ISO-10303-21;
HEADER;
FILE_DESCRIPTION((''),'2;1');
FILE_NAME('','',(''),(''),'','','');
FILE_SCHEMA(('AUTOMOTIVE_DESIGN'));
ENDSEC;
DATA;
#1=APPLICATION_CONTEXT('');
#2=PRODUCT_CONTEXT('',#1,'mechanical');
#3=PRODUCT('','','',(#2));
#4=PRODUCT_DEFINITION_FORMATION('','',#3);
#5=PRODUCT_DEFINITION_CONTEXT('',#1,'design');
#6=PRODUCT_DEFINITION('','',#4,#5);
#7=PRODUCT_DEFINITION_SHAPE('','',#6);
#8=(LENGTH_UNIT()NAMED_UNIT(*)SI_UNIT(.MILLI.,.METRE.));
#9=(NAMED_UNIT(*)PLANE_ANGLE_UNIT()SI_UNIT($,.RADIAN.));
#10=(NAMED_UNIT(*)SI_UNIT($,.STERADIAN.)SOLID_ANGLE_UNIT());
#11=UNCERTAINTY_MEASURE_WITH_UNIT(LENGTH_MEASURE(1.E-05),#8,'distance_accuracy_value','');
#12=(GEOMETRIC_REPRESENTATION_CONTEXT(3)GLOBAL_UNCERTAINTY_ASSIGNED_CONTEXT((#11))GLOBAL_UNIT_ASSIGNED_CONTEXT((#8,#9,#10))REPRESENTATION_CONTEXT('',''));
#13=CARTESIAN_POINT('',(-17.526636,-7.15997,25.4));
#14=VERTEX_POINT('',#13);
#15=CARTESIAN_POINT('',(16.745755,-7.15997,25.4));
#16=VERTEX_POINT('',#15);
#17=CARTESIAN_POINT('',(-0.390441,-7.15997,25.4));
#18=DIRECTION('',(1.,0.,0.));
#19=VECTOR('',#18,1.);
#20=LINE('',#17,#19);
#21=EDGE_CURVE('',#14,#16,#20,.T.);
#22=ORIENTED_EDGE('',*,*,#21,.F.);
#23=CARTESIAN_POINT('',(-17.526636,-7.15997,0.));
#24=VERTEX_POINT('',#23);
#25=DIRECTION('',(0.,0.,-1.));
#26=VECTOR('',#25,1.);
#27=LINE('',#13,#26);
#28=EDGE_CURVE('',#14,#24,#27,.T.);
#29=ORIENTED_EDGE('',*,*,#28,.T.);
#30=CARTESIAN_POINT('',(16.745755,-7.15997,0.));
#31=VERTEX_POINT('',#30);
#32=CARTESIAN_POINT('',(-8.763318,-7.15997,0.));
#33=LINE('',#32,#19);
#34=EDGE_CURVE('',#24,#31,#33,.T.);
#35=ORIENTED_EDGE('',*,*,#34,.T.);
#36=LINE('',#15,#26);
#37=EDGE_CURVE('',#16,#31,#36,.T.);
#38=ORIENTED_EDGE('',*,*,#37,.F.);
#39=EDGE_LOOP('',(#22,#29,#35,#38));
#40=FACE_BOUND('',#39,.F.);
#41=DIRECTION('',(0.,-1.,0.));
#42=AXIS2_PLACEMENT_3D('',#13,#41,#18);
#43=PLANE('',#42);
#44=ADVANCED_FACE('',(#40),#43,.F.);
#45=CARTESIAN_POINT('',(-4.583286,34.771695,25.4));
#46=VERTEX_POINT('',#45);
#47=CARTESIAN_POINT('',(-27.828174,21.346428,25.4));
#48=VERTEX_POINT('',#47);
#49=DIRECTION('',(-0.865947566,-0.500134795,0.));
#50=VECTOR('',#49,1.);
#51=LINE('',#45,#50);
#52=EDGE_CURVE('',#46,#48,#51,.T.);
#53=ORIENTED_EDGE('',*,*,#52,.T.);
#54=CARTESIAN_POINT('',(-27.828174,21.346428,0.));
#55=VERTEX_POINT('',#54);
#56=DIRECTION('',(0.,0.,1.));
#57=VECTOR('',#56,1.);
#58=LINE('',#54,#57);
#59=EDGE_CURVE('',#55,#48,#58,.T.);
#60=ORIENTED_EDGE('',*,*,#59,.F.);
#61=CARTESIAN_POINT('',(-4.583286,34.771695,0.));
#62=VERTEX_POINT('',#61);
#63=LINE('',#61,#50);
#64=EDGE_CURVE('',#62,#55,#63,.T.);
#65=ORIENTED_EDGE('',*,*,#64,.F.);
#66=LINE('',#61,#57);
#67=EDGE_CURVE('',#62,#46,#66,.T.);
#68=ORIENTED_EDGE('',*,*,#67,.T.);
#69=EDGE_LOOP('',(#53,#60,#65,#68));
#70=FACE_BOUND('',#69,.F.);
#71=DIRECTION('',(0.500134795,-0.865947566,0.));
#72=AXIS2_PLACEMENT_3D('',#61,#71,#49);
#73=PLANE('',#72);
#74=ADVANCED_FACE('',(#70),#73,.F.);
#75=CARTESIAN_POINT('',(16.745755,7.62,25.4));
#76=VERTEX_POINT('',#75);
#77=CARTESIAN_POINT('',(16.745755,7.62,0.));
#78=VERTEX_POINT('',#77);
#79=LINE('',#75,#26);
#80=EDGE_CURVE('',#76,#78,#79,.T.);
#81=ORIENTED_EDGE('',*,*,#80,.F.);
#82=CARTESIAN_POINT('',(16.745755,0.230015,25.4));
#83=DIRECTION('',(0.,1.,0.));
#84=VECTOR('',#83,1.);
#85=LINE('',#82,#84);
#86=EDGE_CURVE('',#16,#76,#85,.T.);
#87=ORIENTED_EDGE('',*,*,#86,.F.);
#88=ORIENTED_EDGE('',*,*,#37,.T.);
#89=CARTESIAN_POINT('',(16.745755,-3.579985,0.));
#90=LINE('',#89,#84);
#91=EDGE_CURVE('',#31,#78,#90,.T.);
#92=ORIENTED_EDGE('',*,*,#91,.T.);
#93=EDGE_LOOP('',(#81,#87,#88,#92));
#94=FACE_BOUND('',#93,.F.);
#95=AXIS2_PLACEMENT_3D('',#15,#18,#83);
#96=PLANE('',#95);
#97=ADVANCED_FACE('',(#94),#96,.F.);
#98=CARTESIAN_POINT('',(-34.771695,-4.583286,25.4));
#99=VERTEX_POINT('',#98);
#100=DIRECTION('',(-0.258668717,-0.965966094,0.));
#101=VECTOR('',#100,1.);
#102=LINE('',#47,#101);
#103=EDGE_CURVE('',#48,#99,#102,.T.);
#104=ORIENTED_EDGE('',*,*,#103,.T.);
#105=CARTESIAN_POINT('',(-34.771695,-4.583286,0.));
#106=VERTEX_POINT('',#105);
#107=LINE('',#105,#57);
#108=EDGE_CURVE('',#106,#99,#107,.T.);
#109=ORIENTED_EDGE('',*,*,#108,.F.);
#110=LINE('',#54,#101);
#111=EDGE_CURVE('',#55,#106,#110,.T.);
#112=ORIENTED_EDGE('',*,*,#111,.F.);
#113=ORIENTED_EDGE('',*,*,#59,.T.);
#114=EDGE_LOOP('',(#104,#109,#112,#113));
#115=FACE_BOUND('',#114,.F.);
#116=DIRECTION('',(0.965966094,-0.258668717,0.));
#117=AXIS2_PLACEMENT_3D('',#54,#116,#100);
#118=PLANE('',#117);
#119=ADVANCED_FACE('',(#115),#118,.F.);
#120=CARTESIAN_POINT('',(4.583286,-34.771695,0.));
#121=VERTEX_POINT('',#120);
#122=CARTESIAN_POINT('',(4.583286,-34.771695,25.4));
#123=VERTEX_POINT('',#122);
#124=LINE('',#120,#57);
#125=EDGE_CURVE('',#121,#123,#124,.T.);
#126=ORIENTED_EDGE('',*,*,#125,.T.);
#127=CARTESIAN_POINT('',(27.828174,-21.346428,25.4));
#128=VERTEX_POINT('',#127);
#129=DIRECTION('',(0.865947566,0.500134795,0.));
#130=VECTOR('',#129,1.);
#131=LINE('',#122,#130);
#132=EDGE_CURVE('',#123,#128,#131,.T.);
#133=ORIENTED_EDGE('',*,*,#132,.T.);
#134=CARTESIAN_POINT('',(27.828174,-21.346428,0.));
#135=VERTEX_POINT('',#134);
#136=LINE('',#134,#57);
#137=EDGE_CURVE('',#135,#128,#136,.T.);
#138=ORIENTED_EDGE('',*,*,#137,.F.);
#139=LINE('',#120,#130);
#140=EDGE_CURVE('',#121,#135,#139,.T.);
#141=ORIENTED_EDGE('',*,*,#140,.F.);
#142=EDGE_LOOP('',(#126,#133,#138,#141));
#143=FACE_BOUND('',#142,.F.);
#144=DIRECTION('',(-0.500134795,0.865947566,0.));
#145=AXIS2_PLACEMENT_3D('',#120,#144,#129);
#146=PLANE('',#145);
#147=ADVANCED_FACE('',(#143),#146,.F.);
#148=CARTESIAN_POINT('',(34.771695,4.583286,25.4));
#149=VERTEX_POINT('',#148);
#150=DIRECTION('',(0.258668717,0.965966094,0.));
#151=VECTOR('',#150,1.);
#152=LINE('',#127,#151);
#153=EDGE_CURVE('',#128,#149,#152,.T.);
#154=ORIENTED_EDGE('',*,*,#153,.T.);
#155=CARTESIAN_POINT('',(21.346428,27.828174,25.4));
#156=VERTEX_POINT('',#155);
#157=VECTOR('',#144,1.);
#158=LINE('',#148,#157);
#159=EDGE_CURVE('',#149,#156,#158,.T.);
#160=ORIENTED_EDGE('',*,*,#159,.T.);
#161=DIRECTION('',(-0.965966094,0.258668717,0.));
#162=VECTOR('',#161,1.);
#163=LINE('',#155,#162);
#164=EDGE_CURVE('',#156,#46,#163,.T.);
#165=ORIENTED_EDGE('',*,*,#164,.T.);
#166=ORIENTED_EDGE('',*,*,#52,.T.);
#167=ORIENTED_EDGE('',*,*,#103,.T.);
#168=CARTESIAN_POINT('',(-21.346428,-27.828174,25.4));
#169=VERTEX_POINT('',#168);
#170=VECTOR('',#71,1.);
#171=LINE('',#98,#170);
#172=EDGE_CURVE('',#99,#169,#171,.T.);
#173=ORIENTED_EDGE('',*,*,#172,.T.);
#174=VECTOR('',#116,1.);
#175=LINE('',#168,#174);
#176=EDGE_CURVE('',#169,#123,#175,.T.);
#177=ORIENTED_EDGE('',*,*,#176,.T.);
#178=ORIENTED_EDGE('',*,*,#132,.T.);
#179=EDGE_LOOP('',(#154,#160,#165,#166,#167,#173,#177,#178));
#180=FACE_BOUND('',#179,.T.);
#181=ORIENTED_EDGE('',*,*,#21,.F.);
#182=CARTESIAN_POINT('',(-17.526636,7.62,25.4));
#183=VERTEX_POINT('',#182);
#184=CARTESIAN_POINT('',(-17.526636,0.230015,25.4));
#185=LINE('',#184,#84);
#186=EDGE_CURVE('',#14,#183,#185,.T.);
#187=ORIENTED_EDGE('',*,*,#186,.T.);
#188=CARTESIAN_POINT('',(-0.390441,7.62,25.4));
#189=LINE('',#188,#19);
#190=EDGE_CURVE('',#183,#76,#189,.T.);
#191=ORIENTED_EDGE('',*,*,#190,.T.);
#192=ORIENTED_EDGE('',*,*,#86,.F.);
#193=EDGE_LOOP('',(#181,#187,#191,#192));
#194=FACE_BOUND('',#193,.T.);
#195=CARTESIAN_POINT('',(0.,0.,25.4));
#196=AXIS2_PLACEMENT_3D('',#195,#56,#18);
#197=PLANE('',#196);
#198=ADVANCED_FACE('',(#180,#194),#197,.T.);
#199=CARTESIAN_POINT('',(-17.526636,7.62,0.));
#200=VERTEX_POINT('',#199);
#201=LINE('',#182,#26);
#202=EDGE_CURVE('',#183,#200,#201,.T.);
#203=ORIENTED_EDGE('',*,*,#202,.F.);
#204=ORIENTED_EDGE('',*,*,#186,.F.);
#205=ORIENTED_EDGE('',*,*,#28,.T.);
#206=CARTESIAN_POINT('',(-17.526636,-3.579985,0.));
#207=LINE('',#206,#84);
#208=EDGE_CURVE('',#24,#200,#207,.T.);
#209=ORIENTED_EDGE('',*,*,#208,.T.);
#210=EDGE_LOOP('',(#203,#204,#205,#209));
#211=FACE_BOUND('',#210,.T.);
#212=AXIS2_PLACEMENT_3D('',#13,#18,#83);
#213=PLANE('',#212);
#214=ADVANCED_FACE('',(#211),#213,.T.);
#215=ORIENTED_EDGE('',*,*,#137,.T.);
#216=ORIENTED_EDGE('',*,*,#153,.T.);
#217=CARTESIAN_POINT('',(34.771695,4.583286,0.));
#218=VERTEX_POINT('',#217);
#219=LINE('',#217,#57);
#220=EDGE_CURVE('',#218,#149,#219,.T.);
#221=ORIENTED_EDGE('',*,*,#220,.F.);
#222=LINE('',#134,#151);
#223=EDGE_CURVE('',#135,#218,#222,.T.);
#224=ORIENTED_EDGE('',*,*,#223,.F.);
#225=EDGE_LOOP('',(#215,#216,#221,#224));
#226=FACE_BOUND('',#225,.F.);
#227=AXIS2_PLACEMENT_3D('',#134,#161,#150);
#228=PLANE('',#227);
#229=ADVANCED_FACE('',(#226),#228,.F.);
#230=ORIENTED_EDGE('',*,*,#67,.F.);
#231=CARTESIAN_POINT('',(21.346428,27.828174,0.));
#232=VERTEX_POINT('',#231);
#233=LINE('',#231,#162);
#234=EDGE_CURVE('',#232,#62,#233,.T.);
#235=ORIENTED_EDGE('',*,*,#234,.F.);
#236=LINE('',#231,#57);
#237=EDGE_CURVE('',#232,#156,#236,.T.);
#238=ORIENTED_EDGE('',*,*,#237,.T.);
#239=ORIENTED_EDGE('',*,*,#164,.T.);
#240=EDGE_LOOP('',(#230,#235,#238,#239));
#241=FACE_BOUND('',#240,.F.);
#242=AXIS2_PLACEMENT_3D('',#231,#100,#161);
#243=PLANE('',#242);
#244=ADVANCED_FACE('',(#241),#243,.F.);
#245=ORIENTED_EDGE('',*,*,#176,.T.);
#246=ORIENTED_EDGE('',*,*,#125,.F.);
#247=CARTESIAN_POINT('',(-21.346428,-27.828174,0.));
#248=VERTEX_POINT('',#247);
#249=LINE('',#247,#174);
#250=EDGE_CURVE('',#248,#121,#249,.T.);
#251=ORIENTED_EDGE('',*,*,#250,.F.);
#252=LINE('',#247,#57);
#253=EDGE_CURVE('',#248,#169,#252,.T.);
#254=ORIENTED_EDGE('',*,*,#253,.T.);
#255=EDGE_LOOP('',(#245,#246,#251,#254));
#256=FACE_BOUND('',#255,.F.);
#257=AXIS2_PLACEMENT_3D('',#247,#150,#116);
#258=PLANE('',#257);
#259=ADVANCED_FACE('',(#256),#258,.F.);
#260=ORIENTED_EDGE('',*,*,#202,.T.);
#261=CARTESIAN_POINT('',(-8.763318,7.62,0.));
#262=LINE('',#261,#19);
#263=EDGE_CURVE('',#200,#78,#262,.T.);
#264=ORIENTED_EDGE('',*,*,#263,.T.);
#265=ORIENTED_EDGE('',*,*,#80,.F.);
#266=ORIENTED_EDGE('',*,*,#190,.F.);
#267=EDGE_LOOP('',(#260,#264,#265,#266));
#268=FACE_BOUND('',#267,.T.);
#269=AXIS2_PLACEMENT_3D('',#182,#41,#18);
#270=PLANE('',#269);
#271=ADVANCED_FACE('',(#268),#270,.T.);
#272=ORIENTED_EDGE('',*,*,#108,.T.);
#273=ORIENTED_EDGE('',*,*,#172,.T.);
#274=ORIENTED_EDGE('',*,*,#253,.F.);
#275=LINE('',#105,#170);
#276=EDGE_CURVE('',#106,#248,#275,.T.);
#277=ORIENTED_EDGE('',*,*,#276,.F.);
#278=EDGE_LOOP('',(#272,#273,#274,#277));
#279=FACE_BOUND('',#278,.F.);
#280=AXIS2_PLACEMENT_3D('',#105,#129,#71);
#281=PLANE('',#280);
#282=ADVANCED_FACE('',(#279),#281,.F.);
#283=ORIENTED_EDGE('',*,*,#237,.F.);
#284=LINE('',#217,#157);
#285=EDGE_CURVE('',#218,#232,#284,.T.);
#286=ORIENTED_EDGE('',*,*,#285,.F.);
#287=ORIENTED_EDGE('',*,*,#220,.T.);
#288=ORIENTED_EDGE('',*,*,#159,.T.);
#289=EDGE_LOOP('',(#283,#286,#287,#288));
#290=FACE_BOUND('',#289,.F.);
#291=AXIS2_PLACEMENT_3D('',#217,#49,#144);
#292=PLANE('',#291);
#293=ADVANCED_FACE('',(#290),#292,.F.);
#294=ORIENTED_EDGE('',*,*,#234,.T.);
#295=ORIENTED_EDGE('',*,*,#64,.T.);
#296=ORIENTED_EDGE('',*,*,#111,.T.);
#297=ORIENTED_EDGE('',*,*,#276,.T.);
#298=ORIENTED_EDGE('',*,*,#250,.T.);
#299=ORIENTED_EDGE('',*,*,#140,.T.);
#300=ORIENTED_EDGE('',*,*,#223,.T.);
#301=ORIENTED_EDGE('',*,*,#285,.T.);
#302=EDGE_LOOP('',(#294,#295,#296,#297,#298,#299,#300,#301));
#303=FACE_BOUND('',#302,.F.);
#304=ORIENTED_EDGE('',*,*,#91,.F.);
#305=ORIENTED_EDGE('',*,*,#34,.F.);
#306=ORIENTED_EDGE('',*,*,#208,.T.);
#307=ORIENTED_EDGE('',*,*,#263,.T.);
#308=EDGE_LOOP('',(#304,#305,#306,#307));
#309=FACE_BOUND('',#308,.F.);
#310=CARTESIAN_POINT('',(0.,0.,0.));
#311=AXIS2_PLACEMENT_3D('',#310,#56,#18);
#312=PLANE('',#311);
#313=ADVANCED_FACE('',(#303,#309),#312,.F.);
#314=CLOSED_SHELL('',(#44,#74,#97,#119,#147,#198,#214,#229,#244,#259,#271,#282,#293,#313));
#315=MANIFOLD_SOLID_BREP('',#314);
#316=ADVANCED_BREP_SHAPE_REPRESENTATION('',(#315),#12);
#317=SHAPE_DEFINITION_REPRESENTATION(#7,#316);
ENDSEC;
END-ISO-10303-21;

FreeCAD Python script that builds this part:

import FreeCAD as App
import Part
import Sketcher
Q = App.Units.Quantity

doc = App.newDocument("Part")
body = doc.addObject("PartDesign::Body", "Body")

# Sketch on XY plane
sketch1 = doc.addObject("Sketcher::SketchObject", "Sketch")
body.addObject(sketch1)
sketch1.AttachmentSupport = (doc.XY_Plane, [""])
sketch1.MapMode = "FlatFace"
sketch1.addGeometry([
    Part.LineSegment(App.Vector(34.771695, 4.583286, 0), App.Vector(21.346428, 27.828174, 0)),  # 0
    Part.LineSegment(App.Vector(21.346428, 27.828174, 0), App.Vector(-4.583286, 34.771695, 0)),  # 1
    Part.LineSegment(App.Vector(-4.583286, 34.771695, 0), App.Vector(-27.828174, 21.346428, 0)),  # 2
    Part.LineSegment(App.Vector(-27.828174, 21.346428, 0), App.Vector(-34.771695, -4.583286, 0)),  # 3
    Part.LineSegment(App.Vector(-34.771695, -4.583286, 0), App.Vector(-21.346428, -27.828174, 0)),  # 4
    Part.LineSegment(App.Vector(-21.346428, -27.828174, 0), App.Vector(4.583286, -34.771695, 0)),  # 5
    Part.LineSegment(App.Vector(4.583286, -34.771695, 0), App.Vector(27.828174, -21.346428, 0)),  # 6
    Part.LineSegment(App.Vector(27.828174, -21.346428, 0), App.Vector(34.771695, 4.583286, 0)),  # 7
], False)
sketch1.addConstraint([
    Sketcher.Constraint("Coincident", 0, 2, 1, 1),
    Sketcher.Constraint("Coincident", 1, 2, 2, 1),
    Sketcher.Constraint("Coincident", 2, 2, 3, 1),
    Sketcher.Constraint("Coincident", 3, 2, 4, 1),
    Sketcher.Constraint("Coincident", 4, 2, 5, 1),
    Sketcher.Constraint("Coincident", 5, 2, 6, 1),
    Sketcher.Constraint("Coincident", 6, 2, 7, 1),
    Sketcher.Constraint("Coincident", 7, 2, 0, 1),
    Sketcher.Constraint("Symmetric", 0, 2, 4, 2, -1, 1),
    Sketcher.Constraint("Symmetric", 1, 2, 5, 2, -1, 1),
    Sketcher.Constraint("Symmetric", 2, 2, 6, 2, -1, 1),
    Sketcher.Constraint("Symmetric", 3, 2, 7, 2, -1, 1),
    Sketcher.Constraint("Perpendicular", 0, 2),
    Sketcher.Constraint("Perpendicular", 1, 3),
    Sketcher.Constraint("Equal", 0, 1),
    Sketcher.Constraint("Equal", 1, 2),
    Sketcher.Constraint("Equal", 2, 3),
    Sketcher.Constraint("DistanceY", 0, 2, 1, 2, Q("6.943521 mm")),
    Sketcher.Constraint("DistanceX", 3, 2, 1, 2, Q("30.188409 mm")),
    Sketcher.Constraint("DistanceY", 3, 2, 1, 2, Q("39.354981 mm")),
])
pad1 = doc.addObject("PartDesign::Pad", "Pad")
body.addObject(pad1)
pad1.Profile = sketch1
pad1.Length = Q("1 in")

# Sketch on XY plane
sketch2 = doc.addObject("Sketcher::SketchObject", "Sketch001")
body.addObject(sketch2)
sketch2.AttachmentSupport = (doc.XY_Plane, [""])
sketch2.MapMode = "FlatFace"
sketch2.AttachmentOffset = App.Placement(App.Vector(0, 0, 1 * 25.4), App.Rotation())
sketch2.addGeometry([
    Part.LineSegment(App.Vector(-17.526636, 7.62, 0), App.Vector(-17.526636, -7.15997, 0)),
    Part.LineSegment(App.Vector(-17.526636, -7.15997, 0), App.Vector(16.745755, -7.15997, 0)),
    Part.LineSegment(App.Vector(16.745755, -7.15997, 0), App.Vector(16.745755, 7.62, 0)),
    Part.LineSegment(App.Vector(16.745755, 7.62, 0), App.Vector(-17.526636, 7.62, 0)),
], False)
sketch2.addConstraint([
    Sketcher.Constraint("Coincident", 0, 2, 1, 1),
    Sketcher.Constraint("Coincident", 1, 2, 2, 1),
    Sketcher.Constraint("Coincident", 2, 2, 3, 1),
    Sketcher.Constraint("Coincident", 3, 2, 0, 1),
    Sketcher.Constraint("Vertical", 0),
    Sketcher.Constraint("Horizontal", 1),
    Sketcher.Constraint("Vertical", 2),
    Sketcher.Constraint("Horizontal", 3),
    Sketcher.Constraint("DistanceY", -1, 1, 2, 2, Q("0.3 in")),
    Sketcher.Constraint("DistanceX", 1, 1, 1, 2, Q("34.272391 mm")),
    Sketcher.Constraint("DistanceY", 0, 2, 0, 1, Q("14.77997 mm")),
    Sketcher.Constraint("DistanceX", 0, 2, -1, 1, Q("17.526636 mm")),
])
pocket1 = doc.addObject("PartDesign::Pocket", "Pocket")
body.addObject(pocket1)
pocket1.Profile = sketch2
pocket1.Length = Q("1.43 in")

doc.recompute()
